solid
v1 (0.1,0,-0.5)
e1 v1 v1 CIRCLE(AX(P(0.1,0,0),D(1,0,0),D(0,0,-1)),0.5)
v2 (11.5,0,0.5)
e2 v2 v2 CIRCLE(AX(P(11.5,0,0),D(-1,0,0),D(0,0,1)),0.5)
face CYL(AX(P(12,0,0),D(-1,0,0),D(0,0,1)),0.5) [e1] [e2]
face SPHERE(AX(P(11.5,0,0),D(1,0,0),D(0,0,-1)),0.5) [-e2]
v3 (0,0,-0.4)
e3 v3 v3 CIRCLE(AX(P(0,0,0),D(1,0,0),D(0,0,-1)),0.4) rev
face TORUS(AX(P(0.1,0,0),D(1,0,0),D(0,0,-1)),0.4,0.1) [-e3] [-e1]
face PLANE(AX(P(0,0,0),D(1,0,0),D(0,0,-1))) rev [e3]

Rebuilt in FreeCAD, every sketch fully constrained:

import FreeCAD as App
import Part
import Sketcher
from FreeCAD import Vector
Q = App.Units.Quantity


def edges_at(feature, points):
    """Names of the edges that pass closest to the given points."""
    edges = feature.Shape.Edges
    near = lambda p: min(range(len(edges)), key=lambda i: edges[i].distToShape(Part.Vertex(*p))[0])
    return sorted({f"Edge{near(p) + 1}" for p in points})

doc = App.newDocument("Part")
body = doc.addObject("PartDesign::Body", "Body")

sketch1 = doc.addObject("Sketcher::SketchObject", "Sketch")
body.addObject(sketch1)
sketch1.AttachmentSupport = (doc.YZ_Plane, [""])
sketch1.MapMode = "FlatFace"
sketch1.addGeometry(Part.Circle(Vector(0, 0, 0), Vector(0, 0, 1), 0.5), False)
sketch1.addConstraint([
    Sketcher.Constraint("Coincident", 0, 3, -1, 1),
    Sketcher.Constraint("Diameter", 0, Q("1 mm")),
])
pad1 = doc.addObject("PartDesign::Pad", "Pad")
body.addObject(pad1)
pad1.Profile = sketch1
pad1.Length = 12
doc.recompute()

fillet = doc.addObject("PartDesign::Fillet", "Fillet")
body.addObject(fillet)
fillet.Base = (pad1, edges_at(pad1, [(12, 0, 0.5)]))
fillet.Radius = 0.5
doc.recompute()

fillet2 = doc.addObject("PartDesign::Fillet", "Fillet001")
body.addObject(fillet2)
fillet2.Base = (fillet, edges_at(fillet, [(0, 0, 0.5)]))
fillet2.Radius = 0.1

doc.recompute()
